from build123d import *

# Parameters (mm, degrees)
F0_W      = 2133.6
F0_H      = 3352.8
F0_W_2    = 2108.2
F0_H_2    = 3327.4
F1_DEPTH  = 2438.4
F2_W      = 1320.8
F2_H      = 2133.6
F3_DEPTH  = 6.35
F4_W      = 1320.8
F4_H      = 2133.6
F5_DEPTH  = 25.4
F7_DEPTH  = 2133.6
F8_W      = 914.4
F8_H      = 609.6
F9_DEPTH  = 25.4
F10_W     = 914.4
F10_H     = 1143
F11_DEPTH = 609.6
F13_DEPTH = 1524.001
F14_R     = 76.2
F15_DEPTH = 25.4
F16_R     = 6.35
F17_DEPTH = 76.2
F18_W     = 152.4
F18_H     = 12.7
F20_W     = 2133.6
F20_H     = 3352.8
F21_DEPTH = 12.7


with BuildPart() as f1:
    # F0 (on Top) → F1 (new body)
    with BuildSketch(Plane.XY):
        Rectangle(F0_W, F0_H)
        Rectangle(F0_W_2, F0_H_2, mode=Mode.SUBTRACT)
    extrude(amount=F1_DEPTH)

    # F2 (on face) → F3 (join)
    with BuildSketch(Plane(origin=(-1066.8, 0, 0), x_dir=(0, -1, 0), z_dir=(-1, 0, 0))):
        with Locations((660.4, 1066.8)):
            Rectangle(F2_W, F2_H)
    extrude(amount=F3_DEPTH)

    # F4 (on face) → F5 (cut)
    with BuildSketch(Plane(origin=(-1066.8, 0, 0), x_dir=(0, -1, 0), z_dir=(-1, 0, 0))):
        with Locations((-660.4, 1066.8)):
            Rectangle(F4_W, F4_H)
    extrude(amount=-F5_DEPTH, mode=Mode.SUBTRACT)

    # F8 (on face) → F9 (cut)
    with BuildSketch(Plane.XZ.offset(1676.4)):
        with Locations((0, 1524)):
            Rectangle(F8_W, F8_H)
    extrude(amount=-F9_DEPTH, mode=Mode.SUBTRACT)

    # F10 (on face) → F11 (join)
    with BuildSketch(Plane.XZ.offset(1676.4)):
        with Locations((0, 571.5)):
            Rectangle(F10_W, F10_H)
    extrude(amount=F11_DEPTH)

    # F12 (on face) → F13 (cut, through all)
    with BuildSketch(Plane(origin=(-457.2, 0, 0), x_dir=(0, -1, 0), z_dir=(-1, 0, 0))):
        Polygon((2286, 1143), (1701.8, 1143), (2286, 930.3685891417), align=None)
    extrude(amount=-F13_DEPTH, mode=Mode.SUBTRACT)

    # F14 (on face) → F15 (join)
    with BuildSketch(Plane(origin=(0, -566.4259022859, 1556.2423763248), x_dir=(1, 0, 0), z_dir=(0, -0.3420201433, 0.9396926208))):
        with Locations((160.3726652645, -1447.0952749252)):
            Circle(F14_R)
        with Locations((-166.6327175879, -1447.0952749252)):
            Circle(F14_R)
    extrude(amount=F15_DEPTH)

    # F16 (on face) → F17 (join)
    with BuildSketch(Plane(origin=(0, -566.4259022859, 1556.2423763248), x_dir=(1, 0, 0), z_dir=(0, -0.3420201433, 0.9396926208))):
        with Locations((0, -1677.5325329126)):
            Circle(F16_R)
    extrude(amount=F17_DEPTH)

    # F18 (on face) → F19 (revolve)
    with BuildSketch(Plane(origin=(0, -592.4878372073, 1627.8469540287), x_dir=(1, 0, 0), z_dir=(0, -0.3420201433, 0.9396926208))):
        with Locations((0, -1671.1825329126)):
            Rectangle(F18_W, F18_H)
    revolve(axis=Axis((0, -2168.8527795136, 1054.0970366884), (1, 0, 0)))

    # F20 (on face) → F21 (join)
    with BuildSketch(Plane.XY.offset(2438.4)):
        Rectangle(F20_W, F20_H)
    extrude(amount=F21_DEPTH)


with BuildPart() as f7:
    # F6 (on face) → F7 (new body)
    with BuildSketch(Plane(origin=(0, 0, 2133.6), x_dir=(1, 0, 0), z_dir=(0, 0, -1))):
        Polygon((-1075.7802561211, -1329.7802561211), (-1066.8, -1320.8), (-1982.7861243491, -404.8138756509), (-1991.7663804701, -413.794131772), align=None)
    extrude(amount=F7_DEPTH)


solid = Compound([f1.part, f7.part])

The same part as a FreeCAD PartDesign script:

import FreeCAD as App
import Part
import Sketcher
from FreeCAD import Vector
Q = App.Units.Quantity

doc = App.newDocument("Part")
body = doc.addObject("PartDesign::Body", "Body")

# Sketch on XY plane
sketch1 = doc.addObject("Sketcher::SketchObject", "Sketch")
body.addObject(sketch1)
sketch1.AttachmentSupport = (doc.XY_Plane, [""])
sketch1.MapMode = "FlatFace"
sketch1.addGeometry(Part.LineSegment(Vector(-1067, 1676, 0), Vector(-1067, -1676, 0)), False)
sketch1.addGeometry(Part.LineSegment(Vector(-1067, -1676, 0), Vector(1067, -1676, 0)), False)
sketch1.addGeometry(Part.LineSegment(Vector(1067, -1676, 0), Vector(1067, 1676, 0)), False)
sketch1.addGeometry(Part.LineSegment(Vector(1067, 1676, 0), Vector(-1067, 1676, 0)), False)
sketch1.addGeometry(Part.LineSegment(Vector(1054, -1664, 0), Vector(-1054, -1664, 0)), False)
sketch1.addGeometry(Part.LineSegment(Vector(-1054, -1664, 0), Vector(-1054, 1664, 0)), False)
sketch1.addGeometry(Part.LineSegment(Vector(-1054, 1664, 0), Vector(1054, 1664, 0)), False)
sketch1.addGeometry(Part.LineSegment(Vector(1054, 1664, 0), Vector(1054, -1664, 0)), False)
sketch1.addConstraint(Sketcher.Constraint("Coincident", 0, 2, 1, 1))
sketch1.addConstraint(Sketcher.Constraint("Coincident", 1, 2, 2, 1))
sketch1.addConstraint(Sketcher.Constraint("Coincident", 2, 2, 3, 1))
sketch1.addConstraint(Sketcher.Constraint("Coincident", 3, 2, 0, 1))
sketch1.addConstraint(Sketcher.Constraint("Coincident", 4, 2, 5, 1))
sketch1.addConstraint(Sketcher.Constraint("Coincident", 5, 2, 6, 1))
sketch1.addConstraint(Sketcher.Constraint("Coincident", 6, 2, 7, 1))
sketch1.addConstraint(Sketcher.Constraint("Coincident", 7, 2, 4, 1))
sketch1.addConstraint(Sketcher.Constraint("Vertical", 0))
sketch1.addConstraint(Sketcher.Constraint("Horizontal", 1))
sketch1.addConstraint(Sketcher.Constraint("Vertical", 2))
sketch1.addConstraint(Sketcher.Constraint("Horizontal", 3))
sketch1.addConstraint(Sketcher.Constraint("Horizontal", 4))
sketch1.addConstraint(Sketcher.Constraint("Vertical", 5))
sketch1.addConstraint(Sketcher.Constraint("Horizontal", 6))
sketch1.addConstraint(Sketcher.Constraint("Vertical", 7))
sketch1.addConstraint(Sketcher.Constraint("Symmetric", 0, 2, 2, 2, -1, 1))
sketch1.addConstraint(Sketcher.Constraint("Symmetric", 4, 2, 6, 2, -1, 1))
sketch1.addConstraint(Sketcher.Constraint("DistanceX", 1, 1, 1, 2, Q("84 in")))
sketch1.addConstraint(Sketcher.Constraint("DistanceX", 4, 2, 4, 1, Q("83 in")))
sketch1.addConstraint(Sketcher.Constraint("DistanceY", 0, 2, 0, 1, Q("132 in")))
sketch1.addConstraint(Sketcher.Constraint("DistanceY", 5, 1, 5, 2, Q("131 in")))
pad1 = doc.addObject("PartDesign::Pad", "Pad")
body.addObject(pad1)
pad1.Profile = sketch1
pad1.Length = Q("96 in")

# Sketch on YZ plane
sketch2 = doc.addObject("Sketcher::SketchObject", "Sketch001")
body.addObject(sketch2)
sketch2.AttachmentSupport = (doc.YZ_Plane, [""])
sketch2.MapMode = "FlatFace"
sketch2.AttachmentOffset = App.Placement(Vector(0, 0, -42 * 25.4), App.Rotation())
sketch2.addGeometry(Part.LineSegment(Vector(0, 2134, 0), Vector(0, 0, 0)), False)
sketch2.addGeometry(Part.LineSegment(Vector(0, 0, 0), Vector(-1321, 0, 0)), False)
sketch2.addGeometry(Part.LineSegment(Vector(-1321, 0, 0), Vector(-1321, 2134, 0)), False)
sketch2.addGeometry(Part.LineSegment(Vector(-1321, 2134, 0), Vector(0, 2134, 0)), False)
sketch2.addConstraint(Sketcher.Constraint("Coincident", 0, 2, 1, 1))
sketch2.addConstraint(Sketcher.Constraint("Coincident", 1, 2, 2, 1))
sketch2.addConstraint(Sketcher.Constraint("Coincident", 2, 2, 3, 1))
sketch2.addConstraint(Sketcher.Constraint("Coincident", 3, 2, 0, 1))
sketch2.addConstraint(Sketcher.Constraint("Vertical", 0))
sketch2.addConstraint(Sketcher.Constraint("Horizontal", 1))
sketch2.addConstraint(Sketcher.Constraint("Vertical", 2))
sketch2.addConstraint(Sketcher.Constraint("Horizontal", 3))
sketch2.addConstraint(Sketcher.Constraint("Coincident", 0, 2, -1, 1))
sketch2.addConstraint(Sketcher.Constraint("DistanceX", 1, 2, 1, 1, Q("52 in")))
sketch2.addConstraint(Sketcher.Constraint("DistanceY", 0, 2, 0, 1, Q("84 in")))
pad2 = doc.addObject("PartDesign::Pad", "Pad001")
body.addObject(pad2)
pad2.Profile = sketch2
pad2.Length = Q("0.25 in")
pad2.Reversed = True

# Sketch on YZ plane
sketch3 = doc.addObject("Sketcher::SketchObject", "Sketch002")
body.addObject(sketch3)
sketch3.AttachmentSupport = (doc.YZ_Plane, [""])
sketch3.MapMode = "FlatFace"
sketch3.AttachmentOffset = App.Placement(Vector(0, 0, -42 * 25.4), App.Rotation())
sketch3.addGeometry(Part.LineSegment(Vector(1321, 2134, 0), Vector(1321, 0, 0)), False)
sketch3.addGeometry(Part.LineSegment(Vector(1321, 0, 0), Vector(0, 0, 0)), False)
sketch3.addGeometry(Part.LineSegment(Vector(0, 0, 0), Vector(0, 2134, 0)), False)
sketch3.addGeometry(Part.LineSegment(Vector(0, 2134, 0), Vector(1321, 2134, 0)), False)
sketch3.addConstraint(Sketcher.Constraint("Coincident", 0, 2, 1, 1))
sketch3.addConstraint(Sketcher.Constraint("Coincident", 1, 2, 2, 1))
sketch3.addConstraint(Sketcher.Constraint("Coincident", 2, 2, 3, 1))
sketch3.addConstraint(Sketcher.Constraint("Coincident", 3, 2, 0, 1))
sketch3.addConstraint(Sketcher.Constraint("Vertical", 0))
sketch3.addConstraint(Sketcher.Constraint("Horizontal", 1))
sketch3.addConstraint(Sketcher.Constraint("Vertical", 2))
sketch3.addConstraint(Sketcher.Constraint("Horizontal", 3))
sketch3.addConstraint(Sketcher.Constraint("Coincident", 1, 2, -1, 1))
sketch3.addConstraint(Sketcher.Constraint("DistanceX", 1, 2, 1, 1, Q("52 in")))
sketch3.addConstraint(Sketcher.Constraint("DistanceY", 0, 2, 0, 1, Q("84 in")))
pocket1 = doc.addObject("PartDesign::Pocket", "Pocket")
body.addObject(pocket1)
pocket1.Profile = sketch3
pocket1.Length = Q("1 in")
pocket1.Reversed = True

# Sketch on XZ plane
sketch4 = doc.addObject("Sketcher::SketchObject", "Sketch003")
body.addObject(sketch4)
sketch4.AttachmentSupport = (doc.XZ_Plane, [""])
sketch4.MapMode = "FlatFace"
sketch4.AttachmentOffset = App.Placement(Vector(0, 0, 66 * 25.4), App.Rotation())
sketch4.addGeometry(Part.LineSegment(Vector(-457, 1829, 0), Vector(-457, 1219, 0)), False)
sketch4.addGeometry(Part.LineSegment(Vector(-457, 1219, 0), Vector(457, 1219, 0)), False)
sketch4.addGeometry(Part.LineSegment(Vector(457, 1219, 0), Vector(457, 1829, 0)), False)
sketch4.addGeometry(Part.LineSegment(Vector(457, 1829, 0), Vector(-457, 1829, 0)), False)
sketch4.addConstraint(Sketcher.Constraint("Coincident", 0, 2, 1, 1))
sketch4.addConstraint(Sketcher.Constraint("Coincident", 1, 2, 2, 1))
sketch4.addConstraint(Sketcher.Constraint("Coincident", 2, 2, 3, 1))
sketch4.addConstraint(Sketcher.Constraint("Coincident", 3, 2, 0, 1))
sketch4.addConstraint(Sketcher.Constraint("Vertical", 0))
sketch4.addConstraint(Sketcher.Constraint("Horizontal", 1))
sketch4.addConstraint(Sketcher.Constraint("Vertical", 2))
sketch4.addConstraint(Sketcher.Constraint("Horizontal", 3))
sketch4.addConstraint(Sketcher.Constraint("DistanceX", 1, 1, 1, 2, Q("36 in")))
sketch4.addConstraint(Sketcher.Constraint("DistanceY", 0, 2, 0, 1, Q("24 in")))
sketch4.addConstraint(Sketcher.Constraint("DistanceX", 0, 2, -1, 1, Q("18 in")))
sketch4.addConstraint(Sketcher.Constraint("DistanceY", -1, 1, 0, 2, Q("48 in")))
pocket2 = doc.addObject("PartDesign::Pocket", "Pocket001")
body.addObject(pocket2)
pocket2.Profile = sketch4
pocket2.Length = Q("1 in")

# Sketch on XZ plane
sketch5 = doc.addObject("Sketcher::SketchObject", "Sketch004")
body.addObject(sketch5)
sketch5.AttachmentSupport = (doc.XZ_Plane, [""])
sketch5.MapMode = "FlatFace"
sketch5.AttachmentOffset = App.Placement(Vector(0, 0, 66 * 25.4), App.Rotation())
sketch5.addGeometry(Part.LineSegment(Vector(-457, 1143, 0), Vector(-457, 0, 0)), False)
sketch5.addGeometry(Part.LineSegment(Vector(-457, 0, 0), Vector(457, 0, 0)), False)
sketch5.addGeometry(Part.LineSegment(Vector(457, 0, 0), Vector(457, 1143, 0)), False)
sketch5.addGeometry(Part.LineSegment(Vector(457, 1143, 0), Vector(-457, 1143, 0)), False)
sketch5.addConstraint(Sketcher.Constraint("Coincident", 0, 2, 1, 1))
sketch5.addConstraint(Sketcher.Constraint("Coincident", 1, 2, 2, 1))
sketch5.addConstraint(Sketcher.Constraint("Coincident", 2, 2, 3, 1))
sketch5.addConstraint(Sketcher.Constraint("Coincident", 3, 2, 0, 1))
sketch5.addConstraint(Sketcher.Constraint("Vertical", 0))
sketch5.addConstraint(Sketcher.Constraint("Horizontal", 1))
sketch5.addConstraint(Sketcher.Constraint("Vertical", 2))
sketch5.addConstraint(Sketcher.Constraint("Horizontal", 3))
sketch5.addConstraint(Sketcher.Constraint("Symmetric", 0, 2, 1, 2, -1, 1))
sketch5.addConstraint(Sketcher.Constraint("DistanceX", 1, 1, 1, 2, Q("36 in")))
sketch5.addConstraint(Sketcher.Constraint("DistanceY", 0, 2, 0, 1, Q("45 in")))
pad3 = doc.addObject("PartDesign::Pad", "Pad002")
body.addObject(pad3)
pad3.Profile = sketch5
pad3.Length = Q("24 in")

# Sketch on YZ plane
sketch6 = doc.addObject("Sketcher::SketchObject", "Sketch005")
body.addObject(sketch6)
sketch6.AttachmentSupport = (doc.YZ_Plane, [""])
sketch6.MapMode = "FlatFace"
sketch6.AttachmentOffset = App.Placement(Vector(0, 0, -18 * 25.4), App.Rotation())
sketch6.addGeometry(Part.LineSegment(Vector(-2286, 1143, 0), Vector(-1702, 1143, 0)), False)
sketch6.addGeometry(Part.LineSegment(Vector(-1702, 1143, 0), Vector(-2286, 930, 0)), False)
sketch6.addGeometry(Part.LineSegment(Vector(-2286, 930, 0), Vector(-2286, 1143, 0)), False)
sketch6.addConstraint(Sketcher.Constraint("Coincident", 0, 2, 1, 1))
sketch6.addConstraint(Sketcher.Constraint("Coincident", 1, 2, 2, 1))
sketch6.addConstraint(Sketcher.Constraint("Coincident", 2, 2, 0, 1))
sketch6.addConstraint(Sketcher.Constraint("Horizontal", 0))
sketch6.addConstraint(Sketcher.Constraint("Vertical", 2))
sketch6.addConstraint(Sketcher.Constraint("DistanceX", 0, 1, 0, 2, Q("23 in")))
sketch6.addConstraint(Sketcher.Constraint("DistanceX", 0, 2, -1, 1, Q("67 in")))
sketch6.addConstraint(Sketcher.Constraint("DistanceY", -1, 1, 0, 2, Q("45 in")))
sketch6.addConstraint(Sketcher.Constraint("Angle", 1, Q("-160 deg")))
pocket3 = doc.addObject("PartDesign::Pocket", "Pocket002")
body.addObject(pocket3)
pocket3.Profile = sketch6
pocket3.Type = "ThroughAll"
pocket3.Reversed = True

# Sketch on an angled plane
sketch7 = doc.addObject("Sketcher::SketchObject", "Sketch006")
body.addObject(sketch7)
sketch7.Placement = App.Placement(Vector(0, -566.425902, 1556.242376), App.Rotation(Vector(1, 0, 0), Vector(0, 0.939692621, 0.342020143), Vector(0, -0.342020143, 0.939692621), "ZXY"))
sketch7.addGeometry(Part.Circle(Vector(160, -1447, 0), Vector(0, 0, 1), 76), False)
sketch7.addGeometry(Part.Circle(Vector(-167, -1447, 0), Vector(0, 0, 1), 76), False)
sketch7.addConstraint(Sketcher.Constraint("Equal", 0, 1))
sketch7.addConstraint(Sketcher.Constraint("Horizontal", 0, 3, 1, 3))
sketch7.addConstraint(Sketcher.Constraint("Diameter", 0, Q("6 in")))
sketch7.addConstraint(Sketcher.Constraint("DistanceX", -1, 1, 0, 3, 160.372665))
sketch7.addConstraint(Sketcher.Constraint("DistanceY", 0, 3, -1, 1, 1447.095275))
sketch7.addConstraint(Sketcher.Constraint("DistanceX", 1, 3, -1, 1, 166.632718))
pad4 = doc.addObject("PartDesign::Pad", "Pad003")
body.addObject(pad4)
pad4.Profile = sketch7
pad4.Length = Q("1 in")

# Sketch on an angled plane
sketch8 = doc.addObject("Sketcher::SketchObject", "Sketch007")
body.addObject(sketch8)
sketch8.Placement = App.Placement(Vector(0, -566.425902, 1556.242376), App.Rotation(Vector(1, 0, 0), Vector(0, 0.939692621, 0.342020143), Vector(0, -0.342020143, 0.939692621), "ZXY"))
sketch8.addGeometry(Part.Circle(Vector(0, -1678, 0), Vector(0, 0, 1), 6), False)
sketch8.addConstraint(Sketcher.Constraint("PointOnObject", 0, 3, -2))
sketch8.addConstraint(Sketcher.Constraint("Diameter", 0, Q("0.5 in")))
sketch8.addConstraint(Sketcher.Constraint("DistanceY", 0, 3, -1, 1, 1677.532533))
pad5 = doc.addObject("PartDesign::Pad", "Pad004")
body.addObject(pad5)
pad5.Profile = sketch8
pad5.Length = Q("3 in")

# Sketch on an angled plane
sketch9 = doc.addObject("Sketcher::SketchObject", "Sketch008")
body.addObject(sketch9)
sketch9.Placement = App.Placement(Vector(0, -592.487837, 1627.846954), App.Rotation(Vector(1, 0, 0), Vector(0, 0.939692621, 0.342020143), Vector(0, -0.342020143, 0.939692621), "ZXY"))
sketch9.addGeometry(Part.LineSegment(Vector(-76, -1665, 0), Vector(-76, -1678, 0)), False)
sketch9.addGeometry(Part.LineSegment(Vector(-76, -1678, 0), Vector(76, -1678, 0)), False)
sketch9.addGeometry(Part.LineSegment(Vector(76, -1678, 0), Vector(76, -1665, 0)), False)
sketch9.addGeometry(Part.LineSegment(Vector(76, -1665, 0), Vector(-76, -1665, 0)), False)
sketch9.addGeometry(Part.LineSegment(Vector(-76, -1678, 0), Vector(76, -1678, 0)), True)  # axis
sketch9.addConstraint(Sketcher.Constraint("Coincident", 0, 2, 1, 1))
sketch9.addConstraint(Sketcher.Constraint("Coincident", 1, 2, 2, 1))
sketch9.addConstraint(Sketcher.Constraint("Coincident", 2, 2, 3, 1))
sketch9.addConstraint(Sketcher.Constraint("Coincident", 3, 2, 0, 1))
sketch9.addConstraint(Sketcher.Constraint("Vertical", 0))
sketch9.addConstraint(Sketcher.Constraint("Horizontal", 1))
sketch9.addConstraint(Sketcher.Constraint("Vertical", 2))
sketch9.addConstraint(Sketcher.Constraint("Horizontal", 3))
sketch9.addConstraint(Sketcher.Constraint("Horizontal", 4))
sketch9.addConstraint(Sketcher.Constraint("Coincident", 4, 1, 0, 2))
sketch9.addConstraint(Sketcher.Constraint("Vertical", 2, 2, 4, 2))
sketch9.addConstraint(Sketcher.Constraint("DistanceX", 1, 1, 1, 2, Q("6 in")))
sketch9.addConstraint(Sketcher.Constraint("DistanceY", 0, 2, 0, 1, Q("0.5 in")))
sketch9.addConstraint(Sketcher.Constraint("DistanceX", 0, 2, -1, 1, Q("3 in")))
sketch9.addConstraint(Sketcher.Constraint("DistanceY", 0, 2, -1, 1, 1677.532533))
revolution = doc.addObject("PartDesign::Revolution", "Revolution")
body.addObject(revolution)
revolution.Profile = sketch9
revolution.ReferenceAxis = (sketch9, ["Axis0"])
revolution.Angle = 360

# Sketch on XY plane
sketch10 = doc.addObject("Sketcher::SketchObject", "Sketch009")
body.addObject(sketch10)
sketch10.AttachmentSupport = (doc.XY_Plane, [""])
sketch10.MapMode = "FlatFace"
sketch10.AttachmentOffset = App.Placement(Vector(0, 0, 96 * 25.4), App.Rotation())
sketch10.addGeometry(Part.LineSegment(Vector(-1067, 1676, 0), Vector(-1067, -1676, 0)), False)
sketch10.addGeometry(Part.LineSegment(Vector(-1067, -1676, 0), Vector(1067, -1676, 0)), False)
sketch10.addGeometry(Part.LineSegment(Vector(1067, -1676, 0), Vector(1067, 1676, 0)), False)
sketch10.addGeometry(Part.LineSegment(Vector(1067, 1676, 0), Vector(-1067, 1676, 0)), False)
sketch10.addConstraint(Sketcher.Constraint("Coincident", 0, 2, 1, 1))
sketch10.addConstraint(Sketcher.Constraint("Coincident", 1, 2, 2, 1))
sketch10.addConstraint(Sketcher.Constraint("Coincident", 2, 2, 3, 1))
sketch10.addConstraint(Sketcher.Constraint("Coincident", 3, 2, 0, 1))
sketch10.addConstraint(Sketcher.Constraint("Vertical", 0))
sketch10.addConstraint(Sketcher.Constraint("Horizontal", 1))
sketch10.addConstraint(Sketcher.Constraint("Vertical", 2))
sketch10.addConstraint(Sketcher.Constraint("Horizontal", 3))
sketch10.addConstraint(Sketcher.Constraint("Symmetric", 0, 2, 2, 2, -1, 1))
sketch10.addConstraint(Sketcher.Constraint("DistanceX", 1, 1, 1, 2, Q("84 in")))
sketch10.addConstraint(Sketcher.Constraint("DistanceY", 0, 2, 0, 1, Q("132 in")))
pad6 = doc.addObject("PartDesign::Pad", "Pad005")
body.addObject(pad6)
pad6.Profile = sketch10
pad6.Length = Q("0.5 in")
body2 = doc.addObject("PartDesign::Body", "Body001")

# Sketch on XY plane
sketch11 = doc.addObject("Sketcher::SketchObject", "Sketch010")
body2.addObject(sketch11)
sketch11.AttachmentSupport = (doc.getObject("XY_Plane001"), [""])
sketch11.MapMode = "FlatFace"
sketch11.AttachmentOffset = App.Placement(Vector(0, 0, 84 * 25.4), App.Rotation())
sketch11.addGeometry(Part.LineSegment(Vector(-1076, 1330, 0), Vector(-1067, 1321, 0)), False)
sketch11.addGeometry(Part.LineSegment(Vector(-1067, 1321, 0), Vector(-1983, 405, 0)), False)
sketch11.addGeometry(Part.LineSegment(Vector(-1983, 405, 0), Vector(-1992, 414, 0)), False)
sketch11.addGeometry(Part.LineSegment(Vector(-1992, 414, 0), Vector(-1076, 1330, 0)), False)
sketch11.addConstraint(Sketcher.Constraint("Coincident", 0, 2, 1, 1))
sketch11.addConstraint(Sketcher.Constraint("Coincident", 1, 2, 2, 1))
sketch11.addConstraint(Sketcher.Constraint("Coincident", 2, 2, 3, 1))
sketch11.addConstraint(Sketcher.Constraint("Coincident", 3, 2, 0, 1))
sketch11.addConstraint(Sketcher.Constraint("Perpendicular", 0, 1))
sketch11.addConstraint(Sketcher.Constraint("Perpendicular", 1, 2))
sketch11.addConstraint(Sketcher.Constraint("Perpendicular", 2, 3))
sketch11.addConstraint(Sketcher.Constraint("Distance", 1, Q("51 in")))
sketch11.addConstraint(Sketcher.Constraint("DistanceX", 0, 2, -1, 1, Q("42 in")))
sketch11.addConstraint(Sketcher.Constraint("DistanceY", -1, 1, 0, 2, Q("52 in")))
sketch11.addConstraint(Sketcher.Constraint("Angle", 0, Q("-45 deg")))
sketch11.addConstraint(Sketcher.Constraint("Distance", 0, Q("0.5 in")))
pad7 = doc.addObject("PartDesign::Pad", "Pad006")
body2.addObject(pad7)
pad7.Profile = sketch11
pad7.Length = Q("84 in")
pad7.Reversed = True

doc.recompute()
